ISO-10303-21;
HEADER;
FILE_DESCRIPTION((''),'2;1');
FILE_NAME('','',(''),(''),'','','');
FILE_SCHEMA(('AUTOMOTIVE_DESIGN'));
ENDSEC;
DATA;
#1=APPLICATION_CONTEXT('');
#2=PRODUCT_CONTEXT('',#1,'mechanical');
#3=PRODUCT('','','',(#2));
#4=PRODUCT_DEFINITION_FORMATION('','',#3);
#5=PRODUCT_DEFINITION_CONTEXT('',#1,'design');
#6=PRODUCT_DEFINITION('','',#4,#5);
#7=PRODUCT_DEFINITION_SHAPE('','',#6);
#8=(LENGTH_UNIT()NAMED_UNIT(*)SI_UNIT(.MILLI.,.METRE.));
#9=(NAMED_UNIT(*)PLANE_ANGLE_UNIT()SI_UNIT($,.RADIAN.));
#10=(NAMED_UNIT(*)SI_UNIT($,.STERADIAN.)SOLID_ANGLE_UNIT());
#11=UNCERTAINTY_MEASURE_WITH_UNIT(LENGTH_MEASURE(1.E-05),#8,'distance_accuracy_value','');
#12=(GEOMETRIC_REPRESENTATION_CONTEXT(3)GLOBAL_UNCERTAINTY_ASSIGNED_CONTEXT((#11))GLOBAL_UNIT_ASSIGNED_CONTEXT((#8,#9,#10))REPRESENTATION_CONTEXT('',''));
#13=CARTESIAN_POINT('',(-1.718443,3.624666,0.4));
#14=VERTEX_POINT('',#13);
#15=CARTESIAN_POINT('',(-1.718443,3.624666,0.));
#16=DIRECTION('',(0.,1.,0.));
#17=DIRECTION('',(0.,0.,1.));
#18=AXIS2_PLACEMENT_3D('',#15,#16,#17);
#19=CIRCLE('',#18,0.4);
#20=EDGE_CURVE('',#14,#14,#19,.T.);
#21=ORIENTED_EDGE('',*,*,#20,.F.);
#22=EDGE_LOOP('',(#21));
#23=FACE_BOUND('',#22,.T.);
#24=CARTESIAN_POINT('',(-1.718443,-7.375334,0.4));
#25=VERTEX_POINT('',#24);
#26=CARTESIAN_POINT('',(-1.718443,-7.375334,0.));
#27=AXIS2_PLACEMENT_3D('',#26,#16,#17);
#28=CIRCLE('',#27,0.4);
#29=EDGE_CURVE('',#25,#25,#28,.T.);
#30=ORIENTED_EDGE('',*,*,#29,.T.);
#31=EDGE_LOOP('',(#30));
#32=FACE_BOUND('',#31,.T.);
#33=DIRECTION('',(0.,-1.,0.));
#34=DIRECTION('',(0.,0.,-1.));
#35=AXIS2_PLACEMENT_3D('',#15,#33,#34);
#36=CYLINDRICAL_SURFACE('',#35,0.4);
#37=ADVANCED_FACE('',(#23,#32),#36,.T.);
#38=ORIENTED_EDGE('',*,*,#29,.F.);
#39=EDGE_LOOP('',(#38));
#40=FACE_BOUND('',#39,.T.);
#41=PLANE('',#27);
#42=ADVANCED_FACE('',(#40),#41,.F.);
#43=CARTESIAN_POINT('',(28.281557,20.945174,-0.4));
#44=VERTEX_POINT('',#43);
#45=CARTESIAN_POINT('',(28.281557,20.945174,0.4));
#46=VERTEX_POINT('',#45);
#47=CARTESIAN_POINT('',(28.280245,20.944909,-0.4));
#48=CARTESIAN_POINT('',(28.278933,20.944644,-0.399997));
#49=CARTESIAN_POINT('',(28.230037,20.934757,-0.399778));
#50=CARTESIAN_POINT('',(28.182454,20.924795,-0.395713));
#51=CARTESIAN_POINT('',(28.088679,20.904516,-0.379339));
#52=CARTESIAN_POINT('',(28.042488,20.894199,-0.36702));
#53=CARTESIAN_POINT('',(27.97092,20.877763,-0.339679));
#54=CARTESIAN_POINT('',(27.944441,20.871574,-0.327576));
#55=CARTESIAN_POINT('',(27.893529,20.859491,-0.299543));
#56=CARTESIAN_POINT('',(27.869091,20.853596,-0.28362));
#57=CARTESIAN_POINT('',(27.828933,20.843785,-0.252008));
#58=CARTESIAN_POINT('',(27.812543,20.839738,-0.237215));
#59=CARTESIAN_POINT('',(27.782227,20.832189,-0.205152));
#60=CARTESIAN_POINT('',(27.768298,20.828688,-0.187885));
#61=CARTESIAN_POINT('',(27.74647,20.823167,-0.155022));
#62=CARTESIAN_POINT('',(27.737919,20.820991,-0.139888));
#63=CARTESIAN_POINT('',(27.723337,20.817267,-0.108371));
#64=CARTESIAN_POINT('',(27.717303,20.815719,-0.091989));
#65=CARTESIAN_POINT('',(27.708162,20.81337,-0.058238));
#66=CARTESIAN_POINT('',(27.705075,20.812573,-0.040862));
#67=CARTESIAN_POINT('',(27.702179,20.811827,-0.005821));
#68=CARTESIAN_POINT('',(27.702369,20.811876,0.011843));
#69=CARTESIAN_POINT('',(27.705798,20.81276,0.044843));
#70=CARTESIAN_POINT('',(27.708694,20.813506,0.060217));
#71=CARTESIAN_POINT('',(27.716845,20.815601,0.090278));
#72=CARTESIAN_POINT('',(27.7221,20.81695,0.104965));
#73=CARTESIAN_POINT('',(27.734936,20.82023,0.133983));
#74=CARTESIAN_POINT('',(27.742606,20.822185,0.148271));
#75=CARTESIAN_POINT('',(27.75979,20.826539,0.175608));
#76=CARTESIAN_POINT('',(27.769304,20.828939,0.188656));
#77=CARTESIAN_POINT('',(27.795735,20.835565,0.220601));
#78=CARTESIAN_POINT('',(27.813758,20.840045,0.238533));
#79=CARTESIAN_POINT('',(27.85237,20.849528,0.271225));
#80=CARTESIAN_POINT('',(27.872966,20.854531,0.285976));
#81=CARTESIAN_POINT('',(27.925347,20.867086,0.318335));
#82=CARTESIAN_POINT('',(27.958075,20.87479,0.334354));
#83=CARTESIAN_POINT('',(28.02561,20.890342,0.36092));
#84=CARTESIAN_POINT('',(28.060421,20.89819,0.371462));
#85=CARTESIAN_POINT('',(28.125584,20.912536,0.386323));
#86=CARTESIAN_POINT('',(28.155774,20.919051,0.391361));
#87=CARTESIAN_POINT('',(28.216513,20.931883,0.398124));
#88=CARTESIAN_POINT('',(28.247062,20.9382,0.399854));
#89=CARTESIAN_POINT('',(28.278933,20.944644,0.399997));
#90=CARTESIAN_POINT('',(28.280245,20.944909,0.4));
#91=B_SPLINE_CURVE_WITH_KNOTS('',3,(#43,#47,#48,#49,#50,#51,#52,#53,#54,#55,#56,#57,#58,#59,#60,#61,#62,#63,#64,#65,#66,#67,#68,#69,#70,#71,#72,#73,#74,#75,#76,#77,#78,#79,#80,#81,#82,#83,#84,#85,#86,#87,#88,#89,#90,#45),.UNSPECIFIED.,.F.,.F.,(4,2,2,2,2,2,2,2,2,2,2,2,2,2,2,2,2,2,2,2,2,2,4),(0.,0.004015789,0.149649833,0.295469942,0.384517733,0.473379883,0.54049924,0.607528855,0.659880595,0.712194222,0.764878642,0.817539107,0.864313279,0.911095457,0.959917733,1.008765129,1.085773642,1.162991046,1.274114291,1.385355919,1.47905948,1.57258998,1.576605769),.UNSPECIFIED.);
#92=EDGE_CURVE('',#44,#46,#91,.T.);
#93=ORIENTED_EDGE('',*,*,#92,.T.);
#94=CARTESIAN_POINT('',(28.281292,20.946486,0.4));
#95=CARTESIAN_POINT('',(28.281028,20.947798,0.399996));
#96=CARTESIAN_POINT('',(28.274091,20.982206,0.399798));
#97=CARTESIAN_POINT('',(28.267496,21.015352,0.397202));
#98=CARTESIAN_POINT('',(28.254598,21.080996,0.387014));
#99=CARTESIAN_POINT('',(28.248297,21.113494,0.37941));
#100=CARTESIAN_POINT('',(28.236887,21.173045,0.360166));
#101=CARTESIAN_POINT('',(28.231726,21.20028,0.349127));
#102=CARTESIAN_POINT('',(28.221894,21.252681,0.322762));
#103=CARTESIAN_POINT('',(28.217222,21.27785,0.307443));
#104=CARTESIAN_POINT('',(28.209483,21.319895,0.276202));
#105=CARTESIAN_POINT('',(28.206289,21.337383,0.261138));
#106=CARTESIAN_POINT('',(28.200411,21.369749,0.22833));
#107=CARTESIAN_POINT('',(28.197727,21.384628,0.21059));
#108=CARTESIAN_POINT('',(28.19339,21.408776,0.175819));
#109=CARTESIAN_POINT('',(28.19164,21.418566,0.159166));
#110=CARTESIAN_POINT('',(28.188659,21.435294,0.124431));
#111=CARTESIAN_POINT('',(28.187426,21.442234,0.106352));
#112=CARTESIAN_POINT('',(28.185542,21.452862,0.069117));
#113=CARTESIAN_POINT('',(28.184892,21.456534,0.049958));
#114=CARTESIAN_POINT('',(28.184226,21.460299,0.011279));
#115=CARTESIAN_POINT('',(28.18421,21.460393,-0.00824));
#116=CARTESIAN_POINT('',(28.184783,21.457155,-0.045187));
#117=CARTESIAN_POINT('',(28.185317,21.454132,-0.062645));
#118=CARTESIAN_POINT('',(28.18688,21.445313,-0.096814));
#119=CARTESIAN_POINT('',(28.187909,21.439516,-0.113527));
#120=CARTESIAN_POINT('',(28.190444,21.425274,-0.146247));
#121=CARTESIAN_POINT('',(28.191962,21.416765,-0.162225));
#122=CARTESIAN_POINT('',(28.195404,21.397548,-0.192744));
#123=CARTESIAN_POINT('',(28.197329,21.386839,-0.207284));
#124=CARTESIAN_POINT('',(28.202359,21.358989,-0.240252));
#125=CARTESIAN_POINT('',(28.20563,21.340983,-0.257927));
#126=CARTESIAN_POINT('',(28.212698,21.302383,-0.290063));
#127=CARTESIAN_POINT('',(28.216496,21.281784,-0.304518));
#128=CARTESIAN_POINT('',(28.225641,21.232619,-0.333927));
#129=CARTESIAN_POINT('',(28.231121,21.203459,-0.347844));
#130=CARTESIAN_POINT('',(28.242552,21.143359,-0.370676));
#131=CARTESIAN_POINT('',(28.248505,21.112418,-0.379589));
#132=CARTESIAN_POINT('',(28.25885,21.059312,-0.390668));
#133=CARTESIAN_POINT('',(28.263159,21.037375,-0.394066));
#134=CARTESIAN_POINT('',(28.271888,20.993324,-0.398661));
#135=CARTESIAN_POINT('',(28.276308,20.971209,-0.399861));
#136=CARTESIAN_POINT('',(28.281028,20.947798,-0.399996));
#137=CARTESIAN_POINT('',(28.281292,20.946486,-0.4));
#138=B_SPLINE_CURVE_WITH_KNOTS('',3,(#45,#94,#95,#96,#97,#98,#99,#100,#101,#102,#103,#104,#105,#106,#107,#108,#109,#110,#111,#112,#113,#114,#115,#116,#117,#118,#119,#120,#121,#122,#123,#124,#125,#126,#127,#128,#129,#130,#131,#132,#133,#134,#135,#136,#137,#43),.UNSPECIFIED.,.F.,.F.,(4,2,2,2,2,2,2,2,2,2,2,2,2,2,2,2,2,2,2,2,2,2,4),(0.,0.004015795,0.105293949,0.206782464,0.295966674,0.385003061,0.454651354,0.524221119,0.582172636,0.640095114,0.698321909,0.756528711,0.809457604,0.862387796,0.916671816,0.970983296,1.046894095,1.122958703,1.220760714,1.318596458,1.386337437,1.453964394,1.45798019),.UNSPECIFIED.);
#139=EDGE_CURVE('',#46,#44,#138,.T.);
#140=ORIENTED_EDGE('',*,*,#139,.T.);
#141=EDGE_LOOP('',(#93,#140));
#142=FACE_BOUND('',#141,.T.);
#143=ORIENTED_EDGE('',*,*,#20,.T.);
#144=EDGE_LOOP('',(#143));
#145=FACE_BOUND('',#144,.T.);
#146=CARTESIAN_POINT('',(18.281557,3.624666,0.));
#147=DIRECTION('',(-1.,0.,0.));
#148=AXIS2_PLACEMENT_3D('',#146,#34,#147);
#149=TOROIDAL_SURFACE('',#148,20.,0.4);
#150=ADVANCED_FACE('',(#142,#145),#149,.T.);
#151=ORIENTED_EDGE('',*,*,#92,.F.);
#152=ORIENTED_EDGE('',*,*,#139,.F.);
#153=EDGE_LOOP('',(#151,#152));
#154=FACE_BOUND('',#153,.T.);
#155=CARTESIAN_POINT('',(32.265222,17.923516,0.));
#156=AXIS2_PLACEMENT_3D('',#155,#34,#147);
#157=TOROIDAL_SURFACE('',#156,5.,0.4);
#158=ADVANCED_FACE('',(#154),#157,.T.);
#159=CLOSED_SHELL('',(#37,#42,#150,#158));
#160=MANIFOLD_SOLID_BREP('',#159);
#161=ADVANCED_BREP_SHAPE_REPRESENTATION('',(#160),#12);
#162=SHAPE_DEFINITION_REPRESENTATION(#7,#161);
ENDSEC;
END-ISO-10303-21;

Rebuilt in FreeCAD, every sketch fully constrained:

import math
import FreeCAD as App
import Part
import Sketcher
from FreeCAD import Vector
Q = App.Units.Quantity

doc = App.newDocument("Part")
body = doc.addObject("PartDesign::Body", "Body")

# Sketch on XZ plane
sketch1 = body.newObject("Sketcher::SketchObject", "Sketch")
sketch1.AttachmentSupport = (doc.getObject("XZ_Plane"), [""])
sketch1.MapMode = "FlatFace"
sketch1.AttachmentOffset = App.Placement(Vector(0, 0, 7.375334), App.Rotation())
sketch1.addGeometry(Part.Circle(Vector(-1.718443, 0, 0), Vector(0, 0, 1), 0.4), False)
sketch1.addConstraint([
    Sketcher.Constraint("PointOnObject", 0, 3, -1),
    Sketcher.Constraint("Diameter", 0, Q("0.8 mm")),
    Sketcher.Constraint("DistanceX", 0, 3, -1, 1, Q("1.718443 mm")),
])

# Sketch on XY plane
sketch2 = body.newObject("Sketcher::SketchObject", "Sketch001")
sketch2.AttachmentSupport = (doc.getObject("XY_Plane"), [""])
sketch2.MapMode = "FlatFace"
sketch2.addGeometry([
    Part.LineSegment(Vector(-1.718443, -7.375334, 0), Vector(-1.718443, 3.624666, 0)),
    Part.ArcOfCircle(Part.Circle(Vector(18.281557, 3.624666, 0), Vector(0, 0, 1), 20), math.radians(60), math.radians(180)),
], False)
sketch2.addConstraint([
    Sketcher.Constraint("Tangent", 0, 2, 1, 2),
    Sketcher.Constraint("Vertical", 0),
    Sketcher.Constraint("Radius", 1, Q("20 mm")),
    Sketcher.Constraint("DistanceY", 0, 1, 0, 2, Q("11 mm")),
    Sketcher.Constraint("DistanceX", 1, 3, 1, 1, Q("10 mm")),
    Sketcher.Constraint("DistanceX", -1, 1, 1, 3, Q("18.281557 mm")),
    Sketcher.Constraint("DistanceY", -1, 1, 1, 3, Q("3.624666 mm")),
])
doc.recompute()

additivepipe = body.newObject("PartDesign::AdditivePipe", "AdditivePipe")
additivepipe.Profile = sketch1
additivepipe.Spine = (sketch2, ["Edge1", "Edge2"])

# Sketch on an angled plane
sketch3 = body.newObject("Sketcher::SketchObject", "Sketch002")
sketch3.Placement = App.Placement(Vector(28.281557, 20.945174, 0), App.Rotation(Vector(-0.796732943, 0.604331546, 0), Vector(0, 0, -1), Vector(-0.604331546, -0.796732943, 0), "ZXY"))
sketch3.addGeometry(Part.Circle(Vector(0, 0, 0), Vector(0, 0, 1), 0.4), False)
sketch3.addConstraint([
    Sketcher.Constraint("Coincident", 0, 3, -1, 1),
    Sketcher.Constraint("Diameter", 0, Q("0.8 mm")),
])

# Sketch on XY plane
sketch4 = body.newObject("Sketcher::SketchObject", "Sketch003")
sketch4.AttachmentSupport = (doc.getObject("XY_Plane"), [""])
sketch4.MapMode = "FlatFace"
sketch4.addGeometry(Part.Circle(Vector(32.265222, 17.923516, 0), Vector(0, 0, 1), 5), False)
sketch4.addConstraint([
    Sketcher.Constraint("Diameter", 0, Q("10 mm")),
    Sketcher.Constraint("DistanceX", -1, 1, 0, 3, Q("32.265222 mm")),
    Sketcher.Constraint("DistanceY", -1, 1, 0, 3, Q("17.923516 mm")),
])
doc.recompute()

additivepipe2 = body.newObject("PartDesign::AdditivePipe", "AdditivePipe001")
additivepipe2.Profile = sketch3
additivepipe2.Spine = (sketch4, ["Edge1"])

doc.recompute()
